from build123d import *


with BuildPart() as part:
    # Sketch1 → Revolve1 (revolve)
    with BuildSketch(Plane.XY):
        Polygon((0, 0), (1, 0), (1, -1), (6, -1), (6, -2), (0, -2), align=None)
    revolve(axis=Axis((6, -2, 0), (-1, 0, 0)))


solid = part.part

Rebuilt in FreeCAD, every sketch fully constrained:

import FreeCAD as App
import Part
import Sketcher
from FreeCAD import Vector


def add_polygon(sketch, points):
    """Adds a closed chain of lines whose ends are joined by coincident constraints."""
    first, n = sketch.GeometryCount, len(points)
    for a, b in zip(points, points[1:] + points[:1]):
        sketch.addGeometry(Part.LineSegment(App.Vector(*a, 0), App.Vector(*b, 0)), False)
    for i in range(n):
        sketch.addConstraint(Sketcher.Constraint("Coincident", first + i, 2, first + (i + 1) % n, 1))

doc = App.newDocument("Part")
body = doc.addObject("PartDesign::Body", "Body")

# Sketch on XY plane
sketch1 = body.newObject("Sketcher::SketchObject", "Sketch")
sketch1.AttachmentSupport = (doc.getObject("XY_Plane"), [""])
sketch1.MapMode = "FlatFace"
add_polygon(sketch1, [(1, 0), (0, 0), (0, -2), (6, -2), (6, -1), (1, -1)])  # lines 0-5
sketch1.addGeometry(Part.LineSegment(Vector(6, -2, 0), Vector(0, -2, 0)), True)  # axis
sketch1.addConstraint([
    Sketcher.Constraint("Horizontal", 0),
    Sketcher.Constraint("Vertical", 1),
    Sketcher.Constraint("Horizontal", 2),
    Sketcher.Constraint("Vertical", 3),
    Sketcher.Constraint("Horizontal", 4),
    Sketcher.Constraint("Vertical", 5),
    Sketcher.Constraint("Horizontal", 6),
    Sketcher.Constraint("Coincident", 0, 2, -1, 1),
    Sketcher.Constraint("Coincident", 6, 1, 2, 2),
    Sketcher.Constraint("PointOnObject", 6, 2, -2),
    Sketcher.Constraint("Equal", 0, 3),
    Sketcher.Constraint("Equal", 3, 5),
    Sketcher.Constraint("DistanceX", 0, 2, 0, 1, 1.0),
    Sketcher.Constraint("DistanceX", 2, 1, 2, 2, 6.0),
])
revolution = body.newObject("PartDesign::Revolution", "Revolution")
revolution.Profile = sketch1
revolution.ReferenceAxis = (sketch1, ["Axis0"])
revolution.Angle = 360

doc.recompute()
